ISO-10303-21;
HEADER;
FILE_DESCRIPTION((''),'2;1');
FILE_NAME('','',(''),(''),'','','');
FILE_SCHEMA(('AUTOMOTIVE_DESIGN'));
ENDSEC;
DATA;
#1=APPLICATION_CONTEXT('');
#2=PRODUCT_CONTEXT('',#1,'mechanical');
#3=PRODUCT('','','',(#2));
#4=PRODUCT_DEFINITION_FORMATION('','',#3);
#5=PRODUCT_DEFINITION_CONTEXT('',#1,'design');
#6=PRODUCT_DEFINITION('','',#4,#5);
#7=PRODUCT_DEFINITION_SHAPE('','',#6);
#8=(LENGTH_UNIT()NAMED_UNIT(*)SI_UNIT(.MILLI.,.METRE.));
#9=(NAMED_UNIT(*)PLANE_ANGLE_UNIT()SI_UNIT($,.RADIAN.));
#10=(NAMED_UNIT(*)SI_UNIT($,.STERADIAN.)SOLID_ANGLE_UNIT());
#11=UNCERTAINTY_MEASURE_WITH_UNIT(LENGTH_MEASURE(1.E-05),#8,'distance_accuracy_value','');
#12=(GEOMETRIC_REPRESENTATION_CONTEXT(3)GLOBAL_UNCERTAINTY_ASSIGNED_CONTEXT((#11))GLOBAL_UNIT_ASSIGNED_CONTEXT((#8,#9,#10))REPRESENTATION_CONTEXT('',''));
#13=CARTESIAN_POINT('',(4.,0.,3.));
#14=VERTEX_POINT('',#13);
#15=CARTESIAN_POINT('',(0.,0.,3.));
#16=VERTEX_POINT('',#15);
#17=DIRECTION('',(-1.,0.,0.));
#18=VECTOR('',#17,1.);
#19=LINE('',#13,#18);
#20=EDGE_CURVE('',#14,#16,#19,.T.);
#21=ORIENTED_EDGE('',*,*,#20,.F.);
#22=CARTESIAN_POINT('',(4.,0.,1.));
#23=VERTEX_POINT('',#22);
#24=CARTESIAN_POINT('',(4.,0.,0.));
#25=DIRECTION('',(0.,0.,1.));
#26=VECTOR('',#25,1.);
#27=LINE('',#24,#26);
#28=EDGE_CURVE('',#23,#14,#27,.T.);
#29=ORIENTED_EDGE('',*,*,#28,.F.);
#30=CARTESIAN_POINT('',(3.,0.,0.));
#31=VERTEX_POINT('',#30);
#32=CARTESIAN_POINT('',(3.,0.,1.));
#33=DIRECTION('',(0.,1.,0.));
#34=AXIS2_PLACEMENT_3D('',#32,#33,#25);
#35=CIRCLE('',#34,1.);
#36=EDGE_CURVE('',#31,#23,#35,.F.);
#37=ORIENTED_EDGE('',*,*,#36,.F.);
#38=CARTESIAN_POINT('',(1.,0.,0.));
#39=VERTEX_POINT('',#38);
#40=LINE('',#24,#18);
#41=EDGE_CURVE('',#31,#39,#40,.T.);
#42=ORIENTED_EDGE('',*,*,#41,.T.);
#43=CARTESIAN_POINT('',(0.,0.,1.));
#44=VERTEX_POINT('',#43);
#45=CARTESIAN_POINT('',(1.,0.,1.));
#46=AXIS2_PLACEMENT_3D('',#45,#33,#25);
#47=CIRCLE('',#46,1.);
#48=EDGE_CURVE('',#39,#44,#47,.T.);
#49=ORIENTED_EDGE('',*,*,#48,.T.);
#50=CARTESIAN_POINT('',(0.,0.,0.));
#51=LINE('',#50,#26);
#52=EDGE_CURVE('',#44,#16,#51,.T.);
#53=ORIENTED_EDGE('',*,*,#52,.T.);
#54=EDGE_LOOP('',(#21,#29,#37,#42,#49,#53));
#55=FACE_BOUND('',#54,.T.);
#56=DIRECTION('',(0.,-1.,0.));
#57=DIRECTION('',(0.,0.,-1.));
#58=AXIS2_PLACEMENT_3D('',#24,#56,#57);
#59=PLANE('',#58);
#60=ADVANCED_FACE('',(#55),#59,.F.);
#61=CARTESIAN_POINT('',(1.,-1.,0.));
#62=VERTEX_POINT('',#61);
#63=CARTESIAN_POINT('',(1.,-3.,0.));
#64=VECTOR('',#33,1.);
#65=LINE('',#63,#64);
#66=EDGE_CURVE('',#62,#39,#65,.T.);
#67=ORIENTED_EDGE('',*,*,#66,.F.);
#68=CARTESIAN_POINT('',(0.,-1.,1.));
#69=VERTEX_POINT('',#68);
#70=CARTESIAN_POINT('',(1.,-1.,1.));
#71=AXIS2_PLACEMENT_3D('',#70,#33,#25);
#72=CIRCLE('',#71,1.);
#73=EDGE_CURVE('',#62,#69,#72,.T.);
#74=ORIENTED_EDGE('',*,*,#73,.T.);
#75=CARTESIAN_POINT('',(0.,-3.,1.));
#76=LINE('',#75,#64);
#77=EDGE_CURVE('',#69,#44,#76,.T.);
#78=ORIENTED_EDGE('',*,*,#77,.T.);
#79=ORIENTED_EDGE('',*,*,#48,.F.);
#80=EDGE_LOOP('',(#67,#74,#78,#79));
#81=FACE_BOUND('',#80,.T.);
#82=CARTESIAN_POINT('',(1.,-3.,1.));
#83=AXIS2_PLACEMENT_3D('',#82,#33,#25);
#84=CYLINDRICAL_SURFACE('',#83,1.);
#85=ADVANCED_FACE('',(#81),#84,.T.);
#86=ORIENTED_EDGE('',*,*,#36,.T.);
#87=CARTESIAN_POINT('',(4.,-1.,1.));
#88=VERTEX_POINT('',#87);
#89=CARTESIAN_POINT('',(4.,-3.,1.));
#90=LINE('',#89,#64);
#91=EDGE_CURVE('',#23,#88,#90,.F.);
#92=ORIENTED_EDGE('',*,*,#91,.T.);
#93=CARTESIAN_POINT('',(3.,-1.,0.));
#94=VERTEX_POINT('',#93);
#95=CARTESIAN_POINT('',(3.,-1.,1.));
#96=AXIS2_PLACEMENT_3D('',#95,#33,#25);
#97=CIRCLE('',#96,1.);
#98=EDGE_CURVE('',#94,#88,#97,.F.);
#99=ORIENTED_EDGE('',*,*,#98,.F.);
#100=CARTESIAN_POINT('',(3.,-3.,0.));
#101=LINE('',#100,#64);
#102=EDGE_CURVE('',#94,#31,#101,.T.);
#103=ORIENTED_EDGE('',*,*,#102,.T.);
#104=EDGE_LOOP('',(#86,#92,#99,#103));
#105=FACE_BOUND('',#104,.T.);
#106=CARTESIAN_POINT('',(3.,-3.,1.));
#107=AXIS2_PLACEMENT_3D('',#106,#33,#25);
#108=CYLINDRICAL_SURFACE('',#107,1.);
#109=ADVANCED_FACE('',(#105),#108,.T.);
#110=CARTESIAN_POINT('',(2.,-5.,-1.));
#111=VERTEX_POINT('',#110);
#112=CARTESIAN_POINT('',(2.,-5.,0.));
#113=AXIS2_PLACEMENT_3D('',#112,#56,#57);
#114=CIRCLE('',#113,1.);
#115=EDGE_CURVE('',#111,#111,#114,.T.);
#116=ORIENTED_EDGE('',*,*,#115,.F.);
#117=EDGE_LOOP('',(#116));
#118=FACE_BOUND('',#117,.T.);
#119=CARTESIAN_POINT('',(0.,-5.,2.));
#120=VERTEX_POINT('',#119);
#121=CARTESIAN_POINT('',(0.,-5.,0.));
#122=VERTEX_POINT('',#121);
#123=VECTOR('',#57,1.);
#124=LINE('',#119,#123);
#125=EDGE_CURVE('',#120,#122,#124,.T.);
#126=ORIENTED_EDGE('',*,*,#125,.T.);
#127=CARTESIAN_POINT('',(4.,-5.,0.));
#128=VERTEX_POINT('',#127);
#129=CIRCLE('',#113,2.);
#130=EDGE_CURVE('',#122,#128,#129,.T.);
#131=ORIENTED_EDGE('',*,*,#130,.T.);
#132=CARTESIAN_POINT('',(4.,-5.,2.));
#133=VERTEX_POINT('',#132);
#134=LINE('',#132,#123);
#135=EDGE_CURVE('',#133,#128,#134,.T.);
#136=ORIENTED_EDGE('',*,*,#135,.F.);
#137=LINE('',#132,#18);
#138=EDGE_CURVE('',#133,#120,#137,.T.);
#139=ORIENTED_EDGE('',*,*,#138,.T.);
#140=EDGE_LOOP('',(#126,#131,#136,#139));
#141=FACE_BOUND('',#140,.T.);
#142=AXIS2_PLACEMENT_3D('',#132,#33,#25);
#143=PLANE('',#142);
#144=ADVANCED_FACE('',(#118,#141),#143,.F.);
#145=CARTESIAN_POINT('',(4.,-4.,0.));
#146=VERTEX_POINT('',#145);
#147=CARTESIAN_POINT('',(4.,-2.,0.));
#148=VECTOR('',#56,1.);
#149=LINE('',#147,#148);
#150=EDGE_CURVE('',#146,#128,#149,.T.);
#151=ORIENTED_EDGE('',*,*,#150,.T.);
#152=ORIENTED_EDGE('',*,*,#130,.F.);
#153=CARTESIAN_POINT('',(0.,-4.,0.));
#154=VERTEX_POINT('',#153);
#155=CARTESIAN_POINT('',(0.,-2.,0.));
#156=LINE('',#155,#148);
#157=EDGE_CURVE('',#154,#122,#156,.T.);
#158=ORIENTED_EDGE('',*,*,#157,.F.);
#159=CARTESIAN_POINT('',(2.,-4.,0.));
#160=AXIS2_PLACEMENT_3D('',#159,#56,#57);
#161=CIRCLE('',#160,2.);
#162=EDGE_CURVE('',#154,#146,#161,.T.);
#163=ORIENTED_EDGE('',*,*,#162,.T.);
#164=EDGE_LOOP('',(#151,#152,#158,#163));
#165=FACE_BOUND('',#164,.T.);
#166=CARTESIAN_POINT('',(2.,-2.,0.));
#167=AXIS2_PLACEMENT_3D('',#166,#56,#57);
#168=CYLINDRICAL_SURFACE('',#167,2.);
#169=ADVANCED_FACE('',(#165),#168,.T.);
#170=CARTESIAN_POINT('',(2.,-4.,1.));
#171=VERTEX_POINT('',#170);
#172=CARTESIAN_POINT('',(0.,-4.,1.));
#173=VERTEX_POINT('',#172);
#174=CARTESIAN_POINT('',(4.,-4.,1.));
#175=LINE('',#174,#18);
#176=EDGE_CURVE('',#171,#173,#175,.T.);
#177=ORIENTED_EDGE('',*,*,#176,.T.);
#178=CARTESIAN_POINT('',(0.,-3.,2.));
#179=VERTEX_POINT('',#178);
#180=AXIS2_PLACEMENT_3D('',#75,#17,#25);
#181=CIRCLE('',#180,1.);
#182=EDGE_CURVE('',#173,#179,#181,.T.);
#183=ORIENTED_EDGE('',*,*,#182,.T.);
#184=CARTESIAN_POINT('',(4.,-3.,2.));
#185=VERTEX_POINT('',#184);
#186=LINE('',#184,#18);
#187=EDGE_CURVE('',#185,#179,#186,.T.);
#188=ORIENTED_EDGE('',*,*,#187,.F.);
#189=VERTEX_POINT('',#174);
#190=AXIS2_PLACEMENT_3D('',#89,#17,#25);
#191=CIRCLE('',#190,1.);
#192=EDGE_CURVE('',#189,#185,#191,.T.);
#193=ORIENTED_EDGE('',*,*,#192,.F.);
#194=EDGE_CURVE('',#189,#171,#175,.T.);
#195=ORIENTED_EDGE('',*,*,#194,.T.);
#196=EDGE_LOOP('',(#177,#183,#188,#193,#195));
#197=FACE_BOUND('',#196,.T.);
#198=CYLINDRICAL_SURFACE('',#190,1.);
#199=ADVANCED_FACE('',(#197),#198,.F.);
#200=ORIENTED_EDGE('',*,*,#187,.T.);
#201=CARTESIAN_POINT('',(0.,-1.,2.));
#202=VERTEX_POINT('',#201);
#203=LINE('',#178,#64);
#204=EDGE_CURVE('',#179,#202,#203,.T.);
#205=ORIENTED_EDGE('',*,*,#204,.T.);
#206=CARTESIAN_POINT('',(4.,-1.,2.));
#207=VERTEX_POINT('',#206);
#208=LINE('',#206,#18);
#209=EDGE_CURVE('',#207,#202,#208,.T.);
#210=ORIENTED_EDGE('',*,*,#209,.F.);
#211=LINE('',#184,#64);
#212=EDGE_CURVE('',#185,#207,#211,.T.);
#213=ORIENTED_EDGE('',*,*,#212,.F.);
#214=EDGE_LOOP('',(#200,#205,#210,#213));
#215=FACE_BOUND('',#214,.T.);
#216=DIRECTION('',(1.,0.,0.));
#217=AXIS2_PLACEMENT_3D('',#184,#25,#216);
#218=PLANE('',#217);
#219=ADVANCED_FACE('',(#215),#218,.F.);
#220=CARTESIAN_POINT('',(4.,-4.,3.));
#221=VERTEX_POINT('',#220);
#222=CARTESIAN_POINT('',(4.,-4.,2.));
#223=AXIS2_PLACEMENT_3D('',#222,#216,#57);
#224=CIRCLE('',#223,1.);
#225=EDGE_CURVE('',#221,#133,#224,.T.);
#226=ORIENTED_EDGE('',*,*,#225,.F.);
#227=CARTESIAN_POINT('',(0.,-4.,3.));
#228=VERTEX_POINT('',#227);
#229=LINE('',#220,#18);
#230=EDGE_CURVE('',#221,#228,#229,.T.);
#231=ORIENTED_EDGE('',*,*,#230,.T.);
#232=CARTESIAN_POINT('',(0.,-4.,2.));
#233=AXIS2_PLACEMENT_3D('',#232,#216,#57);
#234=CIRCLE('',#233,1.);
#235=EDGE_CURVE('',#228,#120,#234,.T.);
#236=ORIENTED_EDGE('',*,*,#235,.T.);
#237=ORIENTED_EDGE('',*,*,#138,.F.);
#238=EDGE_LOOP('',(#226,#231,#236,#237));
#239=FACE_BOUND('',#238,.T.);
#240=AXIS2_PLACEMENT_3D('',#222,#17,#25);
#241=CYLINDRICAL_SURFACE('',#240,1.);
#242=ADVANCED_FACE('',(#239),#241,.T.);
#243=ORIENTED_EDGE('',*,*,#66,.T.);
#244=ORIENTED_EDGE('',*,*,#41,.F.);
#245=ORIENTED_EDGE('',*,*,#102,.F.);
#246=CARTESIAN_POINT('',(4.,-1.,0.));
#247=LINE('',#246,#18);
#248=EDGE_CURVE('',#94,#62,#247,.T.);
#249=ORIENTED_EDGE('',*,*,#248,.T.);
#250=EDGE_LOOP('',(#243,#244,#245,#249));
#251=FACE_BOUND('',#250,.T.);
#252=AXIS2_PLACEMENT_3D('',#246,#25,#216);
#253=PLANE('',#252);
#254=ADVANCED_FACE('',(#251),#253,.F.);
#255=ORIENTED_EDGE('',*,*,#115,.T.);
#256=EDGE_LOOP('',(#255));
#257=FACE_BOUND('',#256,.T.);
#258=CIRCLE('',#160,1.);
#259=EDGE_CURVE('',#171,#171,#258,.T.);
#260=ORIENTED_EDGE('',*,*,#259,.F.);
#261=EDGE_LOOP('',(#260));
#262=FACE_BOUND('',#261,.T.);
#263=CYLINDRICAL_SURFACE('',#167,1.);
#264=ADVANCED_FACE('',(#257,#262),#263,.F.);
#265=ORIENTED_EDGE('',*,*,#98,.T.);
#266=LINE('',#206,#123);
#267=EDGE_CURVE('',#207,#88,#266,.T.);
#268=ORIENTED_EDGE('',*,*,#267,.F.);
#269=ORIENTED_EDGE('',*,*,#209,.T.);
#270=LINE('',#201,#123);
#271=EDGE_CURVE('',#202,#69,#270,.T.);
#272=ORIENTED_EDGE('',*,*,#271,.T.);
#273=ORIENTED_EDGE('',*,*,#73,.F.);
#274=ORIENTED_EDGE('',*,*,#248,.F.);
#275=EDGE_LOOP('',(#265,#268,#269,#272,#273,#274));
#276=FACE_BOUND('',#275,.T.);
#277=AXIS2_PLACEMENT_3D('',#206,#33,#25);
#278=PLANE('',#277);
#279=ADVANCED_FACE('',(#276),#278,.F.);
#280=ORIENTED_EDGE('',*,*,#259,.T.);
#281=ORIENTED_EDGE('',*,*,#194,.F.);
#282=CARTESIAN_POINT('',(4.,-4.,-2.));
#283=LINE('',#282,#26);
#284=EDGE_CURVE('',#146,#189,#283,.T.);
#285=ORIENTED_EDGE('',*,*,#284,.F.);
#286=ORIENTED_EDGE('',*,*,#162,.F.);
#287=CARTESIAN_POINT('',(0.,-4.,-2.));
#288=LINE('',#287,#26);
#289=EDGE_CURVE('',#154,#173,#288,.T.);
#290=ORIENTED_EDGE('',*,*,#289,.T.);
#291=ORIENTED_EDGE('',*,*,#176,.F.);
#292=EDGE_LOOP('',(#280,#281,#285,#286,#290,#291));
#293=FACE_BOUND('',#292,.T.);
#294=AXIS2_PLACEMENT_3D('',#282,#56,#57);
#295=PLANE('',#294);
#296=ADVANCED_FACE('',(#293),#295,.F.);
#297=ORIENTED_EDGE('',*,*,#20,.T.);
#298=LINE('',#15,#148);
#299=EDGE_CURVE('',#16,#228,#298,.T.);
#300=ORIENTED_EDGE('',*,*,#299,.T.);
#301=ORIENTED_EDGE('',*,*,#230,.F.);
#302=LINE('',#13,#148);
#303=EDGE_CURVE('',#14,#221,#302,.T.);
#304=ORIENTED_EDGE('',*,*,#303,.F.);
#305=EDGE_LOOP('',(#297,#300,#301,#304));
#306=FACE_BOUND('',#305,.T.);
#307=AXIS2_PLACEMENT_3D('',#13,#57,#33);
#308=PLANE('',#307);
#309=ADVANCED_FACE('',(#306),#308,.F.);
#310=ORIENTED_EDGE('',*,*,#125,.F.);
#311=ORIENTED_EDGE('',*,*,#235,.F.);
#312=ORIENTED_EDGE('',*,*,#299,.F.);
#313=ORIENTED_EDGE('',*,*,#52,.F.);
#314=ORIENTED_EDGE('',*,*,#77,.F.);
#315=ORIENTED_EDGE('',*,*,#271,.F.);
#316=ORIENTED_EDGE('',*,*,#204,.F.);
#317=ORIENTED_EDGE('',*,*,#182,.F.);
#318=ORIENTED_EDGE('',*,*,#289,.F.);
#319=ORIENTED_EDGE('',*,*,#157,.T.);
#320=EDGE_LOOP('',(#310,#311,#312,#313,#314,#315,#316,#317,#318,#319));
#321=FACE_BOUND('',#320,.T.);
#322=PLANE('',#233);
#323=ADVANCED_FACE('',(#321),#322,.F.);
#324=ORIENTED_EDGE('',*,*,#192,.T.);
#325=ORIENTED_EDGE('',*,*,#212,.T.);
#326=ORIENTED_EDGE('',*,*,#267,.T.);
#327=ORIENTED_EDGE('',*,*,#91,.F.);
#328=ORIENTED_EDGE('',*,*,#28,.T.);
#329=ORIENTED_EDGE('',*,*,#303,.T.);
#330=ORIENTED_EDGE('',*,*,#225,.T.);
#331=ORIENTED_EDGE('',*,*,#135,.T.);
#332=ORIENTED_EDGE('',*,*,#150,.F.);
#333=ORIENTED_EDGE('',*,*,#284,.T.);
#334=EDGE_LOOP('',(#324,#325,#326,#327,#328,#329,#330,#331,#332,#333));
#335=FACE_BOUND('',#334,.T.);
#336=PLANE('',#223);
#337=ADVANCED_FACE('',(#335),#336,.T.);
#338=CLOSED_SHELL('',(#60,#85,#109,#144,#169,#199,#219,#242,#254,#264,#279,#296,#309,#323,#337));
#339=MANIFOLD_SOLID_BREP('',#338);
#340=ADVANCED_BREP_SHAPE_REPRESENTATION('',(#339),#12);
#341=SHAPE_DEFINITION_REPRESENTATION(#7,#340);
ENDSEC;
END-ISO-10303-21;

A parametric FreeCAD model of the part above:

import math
import FreeCAD as App
import Part
import Sketcher
from FreeCAD import Vector

doc = App.newDocument("Part")
body = doc.addObject("PartDesign::Body", "Body")

# Sketch on YZ plane
sketch1 = body.newObject("Sketcher::SketchObject", "Sketch")
sketch1.AttachmentSupport = (doc.getObject("YZ_Plane"), [""])
sketch1.MapMode = "FlatFace"
sketch1.addGeometry([
    Part.LineSegment(Vector(0, 0, 0), Vector(0, 3, 0)),  # 0
    Part.LineSegment(Vector(0, 3, 0), Vector(-4, 3, 0)),  # 1
    Part.ArcOfCircle(Part.Circle(Vector(-4, 2, 0), Vector(0, 0, 1), 1), math.radians(90), math.radians(180)),  # 2
    Part.LineSegment(Vector(-5, 2, 0), Vector(-5, -2, 0)),  # 3
    Part.LineSegment(Vector(-5, -2, 0), Vector(-4, -2, 0)),  # 4
    Part.LineSegment(Vector(-4, -2, 0), Vector(-4, 1, 0)),  # 5
    Part.ArcOfCircle(Part.Circle(Vector(-3, 1, 0), Vector(0, 0, 1), 1), math.radians(90), math.radians(180)),  # 6
    Part.LineSegment(Vector(-3, 2, 0), Vector(-1, 2, 0)),  # 7
    Part.LineSegment(Vector(-1, 2, 0), Vector(-1, 0, 0)),  # 8
    Part.LineSegment(Vector(-1, 0, 0), Vector(0, 0, 0)),  # 9
], False)
sketch1.addConstraint([
    Sketcher.Constraint("Coincident", 0, 2, 1, 1),
    Sketcher.Constraint("Tangent", 1, 2, 2, 1),
    Sketcher.Constraint("Tangent", 2, 2, 3, 1),
    Sketcher.Constraint("Coincident", 3, 2, 4, 1),
    Sketcher.Constraint("Coincident", 4, 2, 5, 1),
    Sketcher.Constraint("Tangent", 5, 2, 6, 2),
    Sketcher.Constraint("Tangent", 6, 1, 7, 1),
    Sketcher.Constraint("Coincident", 7, 2, 8, 1),
    Sketcher.Constraint("Coincident", 8, 2, 9, 1),
    Sketcher.Constraint("Coincident", 9, 2, 0, 1),
    Sketcher.Constraint("Vertical", 0),
    Sketcher.Constraint("Horizontal", 1),
    Sketcher.Constraint("Vertical", 3),
    Sketcher.Constraint("Horizontal", 4),
    Sketcher.Constraint("Vertical", 5),
    Sketcher.Constraint("Horizontal", 7),
    Sketcher.Constraint("Vertical", 8),
    Sketcher.Constraint("Horizontal", 9),
    Sketcher.Constraint("Coincident", 9, 2, -1, 1),
    Sketcher.Constraint("Equal", 2, 6),
    Sketcher.Constraint("Horizontal", 2, 2, 6, 1),
    Sketcher.Constraint("Vertical", 1, 2, 4, 2),
    Sketcher.Constraint("Equal", 4, 9),
    Sketcher.Constraint("Equal", 1, 3),
    Sketcher.Constraint("Equal", 0, 5),
    Sketcher.Constraint("Radius", 2, 1.0),
    Sketcher.Constraint("DistanceX", 1, 2, 1, 1, 4.0),
])
pad1 = body.newObject("PartDesign::Pad", "Pad")
pad1.Profile = sketch1
pad1.Length = 4

# Sketch on XZ plane
sketch2 = body.newObject("Sketcher::SketchObject", "Sketch001")
sketch2.AttachmentSupport = (doc.getObject("XZ_Plane"), [""])
sketch2.MapMode = "FlatFace"
sketch2.addGeometry([
    Part.ArcOfCircle(Part.Circle(Vector(1, 1, 0), Vector(0, 0, 1), 1), math.radians(-180), math.radians(-90)),  # 0
    Part.LineSegment(Vector(1, 0, 0), Vector(0, 0, 0)),  # 1
    Part.LineSegment(Vector(0, 0, 0), Vector(0, 1, 0)),  # 2
    Part.LineSegment(Vector(4, 0, 0), Vector(3, 0, 0)),  # 3
    Part.ArcOfCircle(Part.Circle(Vector(3, 1, 0), Vector(0, 0, 1), 1), math.radians(-90), math.radians(0)),  # 4
    Part.LineSegment(Vector(4, 1, 0), Vector(4, 0, 0)),  # 5
], False)
sketch2.addConstraint([
    Sketcher.Constraint("Tangent", 0, 2, 1, 1),
    Sketcher.Constraint("Coincident", 1, 2, 2, 1),
    Sketcher.Constraint("Tangent", 2, 2, 0, 1),
    Sketcher.Constraint("Tangent", 3, 2, 4, 1),
    Sketcher.Constraint("Tangent", 4, 2, 5, 1),
    Sketcher.Constraint("Coincident", 5, 2, 3, 1),
    Sketcher.Constraint("Horizontal", 1),
    Sketcher.Constraint("Vertical", 2),
    Sketcher.Constraint("Horizontal", 3),
    Sketcher.Constraint("Vertical", 5),
    Sketcher.Constraint("Coincident", 1, 2, -1, 1),
    Sketcher.Constraint("Equal", 0, 4),
    Sketcher.Constraint("PointOnObject", 3, 2, -1),
    Sketcher.Constraint("Radius", 0, 1.0),
    Sketcher.Constraint("DistanceX", -1, 1, 4, 3, 3.0),
])
pocket1 = body.newObject("PartDesign::Pocket", "Pocket")
pocket1.Profile = sketch2
pocket1.Length = 3
pocket1.Reversed = True

# Sketch on XZ plane
sketch3 = body.newObject("Sketcher::SketchObject", "Sketch002")
sketch3.AttachmentSupport = (doc.getObject("XZ_Plane"), [""])
sketch3.MapMode = "FlatFace"
sketch3.AttachmentOffset = App.Placement(Vector(0, 0, 5), App.Rotation())
sketch3.addGeometry([
    Part.LineSegment(Vector(0, -2, 0), Vector(2, -2, 0)),  # 0
    Part.ArcOfCircle(Part.Circle(Vector(2, 0, 0), Vector(0, 0, 1), 2), math.radians(-180), math.radians(-90)),  # 1
    Part.LineSegment(Vector(0, 0, 0), Vector(0, -2, 0)),  # 2
    Part.ArcOfCircle(Part.Circle(Vector(2, 0, 0), Vector(0, 0, 1), 2), math.radians(-90), math.radians(0)),  # 3
    Part.LineSegment(Vector(2, -2, 0), Vector(4, -2, 0)),  # 4
    Part.LineSegment(Vector(4, -2, 0), Vector(4, 0, 0)),  # 5
], False)
sketch3.addConstraint([
    Sketcher.Constraint("Tangent", 0, 2, 1, 2),
    Sketcher.Constraint("Tangent", 1, 1, 2, 1),
    Sketcher.Constraint("Coincident", 2, 2, 0, 1),
    Sketcher.Constraint("Tangent", 3, 1, 4, 1),
    Sketcher.Constraint("Coincident", 4, 2, 5, 1),
    Sketcher.Constraint("Tangent", 5, 2, 3, 2),
    Sketcher.Constraint("Horizontal", 0),
    Sketcher.Constraint("Vertical", 2),
    Sketcher.Constraint("Horizontal", 4),
    Sketcher.Constraint("Vertical", 5),
    Sketcher.Constraint("Coincident", 1, 1, -1, 1),
    Sketcher.Constraint("Coincident", 3, 3, 1, 3),
    Sketcher.Constraint("Equal", 1, 3),
    Sketcher.Constraint("Radius", 1, 2.0),
])
pocket2 = body.newObject("PartDesign::Pocket", "Pocket001")
pocket2.Profile = sketch3
pocket2.Type = "ThroughAll"
pocket2.Midplane = True

# Sketch on XZ plane
sketch4 = body.newObject("Sketcher::SketchObject", "Sketch003")
sketch4.AttachmentSupport = (doc.getObject("XZ_Plane"), [""])
sketch4.MapMode = "FlatFace"
sketch4.AttachmentOffset = App.Placement(Vector(0, 0, 5), App.Rotation())
sketch4.addGeometry(Part.Circle(Vector(2, 0, 0), Vector(0, 0, 1), 1), False)
sketch4.addConstraint([
    Sketcher.Constraint("PointOnObject", 0, 3, -1),
    Sketcher.Constraint("Diameter", 0, 2.0),
    Sketcher.Constraint("DistanceX", -1, 1, 0, 3, 2.0),
])
pocket3 = body.newObject("PartDesign::Pocket", "Pocket002")
pocket3.Profile = sketch4
pocket3.Length = 3

doc.recompute()
